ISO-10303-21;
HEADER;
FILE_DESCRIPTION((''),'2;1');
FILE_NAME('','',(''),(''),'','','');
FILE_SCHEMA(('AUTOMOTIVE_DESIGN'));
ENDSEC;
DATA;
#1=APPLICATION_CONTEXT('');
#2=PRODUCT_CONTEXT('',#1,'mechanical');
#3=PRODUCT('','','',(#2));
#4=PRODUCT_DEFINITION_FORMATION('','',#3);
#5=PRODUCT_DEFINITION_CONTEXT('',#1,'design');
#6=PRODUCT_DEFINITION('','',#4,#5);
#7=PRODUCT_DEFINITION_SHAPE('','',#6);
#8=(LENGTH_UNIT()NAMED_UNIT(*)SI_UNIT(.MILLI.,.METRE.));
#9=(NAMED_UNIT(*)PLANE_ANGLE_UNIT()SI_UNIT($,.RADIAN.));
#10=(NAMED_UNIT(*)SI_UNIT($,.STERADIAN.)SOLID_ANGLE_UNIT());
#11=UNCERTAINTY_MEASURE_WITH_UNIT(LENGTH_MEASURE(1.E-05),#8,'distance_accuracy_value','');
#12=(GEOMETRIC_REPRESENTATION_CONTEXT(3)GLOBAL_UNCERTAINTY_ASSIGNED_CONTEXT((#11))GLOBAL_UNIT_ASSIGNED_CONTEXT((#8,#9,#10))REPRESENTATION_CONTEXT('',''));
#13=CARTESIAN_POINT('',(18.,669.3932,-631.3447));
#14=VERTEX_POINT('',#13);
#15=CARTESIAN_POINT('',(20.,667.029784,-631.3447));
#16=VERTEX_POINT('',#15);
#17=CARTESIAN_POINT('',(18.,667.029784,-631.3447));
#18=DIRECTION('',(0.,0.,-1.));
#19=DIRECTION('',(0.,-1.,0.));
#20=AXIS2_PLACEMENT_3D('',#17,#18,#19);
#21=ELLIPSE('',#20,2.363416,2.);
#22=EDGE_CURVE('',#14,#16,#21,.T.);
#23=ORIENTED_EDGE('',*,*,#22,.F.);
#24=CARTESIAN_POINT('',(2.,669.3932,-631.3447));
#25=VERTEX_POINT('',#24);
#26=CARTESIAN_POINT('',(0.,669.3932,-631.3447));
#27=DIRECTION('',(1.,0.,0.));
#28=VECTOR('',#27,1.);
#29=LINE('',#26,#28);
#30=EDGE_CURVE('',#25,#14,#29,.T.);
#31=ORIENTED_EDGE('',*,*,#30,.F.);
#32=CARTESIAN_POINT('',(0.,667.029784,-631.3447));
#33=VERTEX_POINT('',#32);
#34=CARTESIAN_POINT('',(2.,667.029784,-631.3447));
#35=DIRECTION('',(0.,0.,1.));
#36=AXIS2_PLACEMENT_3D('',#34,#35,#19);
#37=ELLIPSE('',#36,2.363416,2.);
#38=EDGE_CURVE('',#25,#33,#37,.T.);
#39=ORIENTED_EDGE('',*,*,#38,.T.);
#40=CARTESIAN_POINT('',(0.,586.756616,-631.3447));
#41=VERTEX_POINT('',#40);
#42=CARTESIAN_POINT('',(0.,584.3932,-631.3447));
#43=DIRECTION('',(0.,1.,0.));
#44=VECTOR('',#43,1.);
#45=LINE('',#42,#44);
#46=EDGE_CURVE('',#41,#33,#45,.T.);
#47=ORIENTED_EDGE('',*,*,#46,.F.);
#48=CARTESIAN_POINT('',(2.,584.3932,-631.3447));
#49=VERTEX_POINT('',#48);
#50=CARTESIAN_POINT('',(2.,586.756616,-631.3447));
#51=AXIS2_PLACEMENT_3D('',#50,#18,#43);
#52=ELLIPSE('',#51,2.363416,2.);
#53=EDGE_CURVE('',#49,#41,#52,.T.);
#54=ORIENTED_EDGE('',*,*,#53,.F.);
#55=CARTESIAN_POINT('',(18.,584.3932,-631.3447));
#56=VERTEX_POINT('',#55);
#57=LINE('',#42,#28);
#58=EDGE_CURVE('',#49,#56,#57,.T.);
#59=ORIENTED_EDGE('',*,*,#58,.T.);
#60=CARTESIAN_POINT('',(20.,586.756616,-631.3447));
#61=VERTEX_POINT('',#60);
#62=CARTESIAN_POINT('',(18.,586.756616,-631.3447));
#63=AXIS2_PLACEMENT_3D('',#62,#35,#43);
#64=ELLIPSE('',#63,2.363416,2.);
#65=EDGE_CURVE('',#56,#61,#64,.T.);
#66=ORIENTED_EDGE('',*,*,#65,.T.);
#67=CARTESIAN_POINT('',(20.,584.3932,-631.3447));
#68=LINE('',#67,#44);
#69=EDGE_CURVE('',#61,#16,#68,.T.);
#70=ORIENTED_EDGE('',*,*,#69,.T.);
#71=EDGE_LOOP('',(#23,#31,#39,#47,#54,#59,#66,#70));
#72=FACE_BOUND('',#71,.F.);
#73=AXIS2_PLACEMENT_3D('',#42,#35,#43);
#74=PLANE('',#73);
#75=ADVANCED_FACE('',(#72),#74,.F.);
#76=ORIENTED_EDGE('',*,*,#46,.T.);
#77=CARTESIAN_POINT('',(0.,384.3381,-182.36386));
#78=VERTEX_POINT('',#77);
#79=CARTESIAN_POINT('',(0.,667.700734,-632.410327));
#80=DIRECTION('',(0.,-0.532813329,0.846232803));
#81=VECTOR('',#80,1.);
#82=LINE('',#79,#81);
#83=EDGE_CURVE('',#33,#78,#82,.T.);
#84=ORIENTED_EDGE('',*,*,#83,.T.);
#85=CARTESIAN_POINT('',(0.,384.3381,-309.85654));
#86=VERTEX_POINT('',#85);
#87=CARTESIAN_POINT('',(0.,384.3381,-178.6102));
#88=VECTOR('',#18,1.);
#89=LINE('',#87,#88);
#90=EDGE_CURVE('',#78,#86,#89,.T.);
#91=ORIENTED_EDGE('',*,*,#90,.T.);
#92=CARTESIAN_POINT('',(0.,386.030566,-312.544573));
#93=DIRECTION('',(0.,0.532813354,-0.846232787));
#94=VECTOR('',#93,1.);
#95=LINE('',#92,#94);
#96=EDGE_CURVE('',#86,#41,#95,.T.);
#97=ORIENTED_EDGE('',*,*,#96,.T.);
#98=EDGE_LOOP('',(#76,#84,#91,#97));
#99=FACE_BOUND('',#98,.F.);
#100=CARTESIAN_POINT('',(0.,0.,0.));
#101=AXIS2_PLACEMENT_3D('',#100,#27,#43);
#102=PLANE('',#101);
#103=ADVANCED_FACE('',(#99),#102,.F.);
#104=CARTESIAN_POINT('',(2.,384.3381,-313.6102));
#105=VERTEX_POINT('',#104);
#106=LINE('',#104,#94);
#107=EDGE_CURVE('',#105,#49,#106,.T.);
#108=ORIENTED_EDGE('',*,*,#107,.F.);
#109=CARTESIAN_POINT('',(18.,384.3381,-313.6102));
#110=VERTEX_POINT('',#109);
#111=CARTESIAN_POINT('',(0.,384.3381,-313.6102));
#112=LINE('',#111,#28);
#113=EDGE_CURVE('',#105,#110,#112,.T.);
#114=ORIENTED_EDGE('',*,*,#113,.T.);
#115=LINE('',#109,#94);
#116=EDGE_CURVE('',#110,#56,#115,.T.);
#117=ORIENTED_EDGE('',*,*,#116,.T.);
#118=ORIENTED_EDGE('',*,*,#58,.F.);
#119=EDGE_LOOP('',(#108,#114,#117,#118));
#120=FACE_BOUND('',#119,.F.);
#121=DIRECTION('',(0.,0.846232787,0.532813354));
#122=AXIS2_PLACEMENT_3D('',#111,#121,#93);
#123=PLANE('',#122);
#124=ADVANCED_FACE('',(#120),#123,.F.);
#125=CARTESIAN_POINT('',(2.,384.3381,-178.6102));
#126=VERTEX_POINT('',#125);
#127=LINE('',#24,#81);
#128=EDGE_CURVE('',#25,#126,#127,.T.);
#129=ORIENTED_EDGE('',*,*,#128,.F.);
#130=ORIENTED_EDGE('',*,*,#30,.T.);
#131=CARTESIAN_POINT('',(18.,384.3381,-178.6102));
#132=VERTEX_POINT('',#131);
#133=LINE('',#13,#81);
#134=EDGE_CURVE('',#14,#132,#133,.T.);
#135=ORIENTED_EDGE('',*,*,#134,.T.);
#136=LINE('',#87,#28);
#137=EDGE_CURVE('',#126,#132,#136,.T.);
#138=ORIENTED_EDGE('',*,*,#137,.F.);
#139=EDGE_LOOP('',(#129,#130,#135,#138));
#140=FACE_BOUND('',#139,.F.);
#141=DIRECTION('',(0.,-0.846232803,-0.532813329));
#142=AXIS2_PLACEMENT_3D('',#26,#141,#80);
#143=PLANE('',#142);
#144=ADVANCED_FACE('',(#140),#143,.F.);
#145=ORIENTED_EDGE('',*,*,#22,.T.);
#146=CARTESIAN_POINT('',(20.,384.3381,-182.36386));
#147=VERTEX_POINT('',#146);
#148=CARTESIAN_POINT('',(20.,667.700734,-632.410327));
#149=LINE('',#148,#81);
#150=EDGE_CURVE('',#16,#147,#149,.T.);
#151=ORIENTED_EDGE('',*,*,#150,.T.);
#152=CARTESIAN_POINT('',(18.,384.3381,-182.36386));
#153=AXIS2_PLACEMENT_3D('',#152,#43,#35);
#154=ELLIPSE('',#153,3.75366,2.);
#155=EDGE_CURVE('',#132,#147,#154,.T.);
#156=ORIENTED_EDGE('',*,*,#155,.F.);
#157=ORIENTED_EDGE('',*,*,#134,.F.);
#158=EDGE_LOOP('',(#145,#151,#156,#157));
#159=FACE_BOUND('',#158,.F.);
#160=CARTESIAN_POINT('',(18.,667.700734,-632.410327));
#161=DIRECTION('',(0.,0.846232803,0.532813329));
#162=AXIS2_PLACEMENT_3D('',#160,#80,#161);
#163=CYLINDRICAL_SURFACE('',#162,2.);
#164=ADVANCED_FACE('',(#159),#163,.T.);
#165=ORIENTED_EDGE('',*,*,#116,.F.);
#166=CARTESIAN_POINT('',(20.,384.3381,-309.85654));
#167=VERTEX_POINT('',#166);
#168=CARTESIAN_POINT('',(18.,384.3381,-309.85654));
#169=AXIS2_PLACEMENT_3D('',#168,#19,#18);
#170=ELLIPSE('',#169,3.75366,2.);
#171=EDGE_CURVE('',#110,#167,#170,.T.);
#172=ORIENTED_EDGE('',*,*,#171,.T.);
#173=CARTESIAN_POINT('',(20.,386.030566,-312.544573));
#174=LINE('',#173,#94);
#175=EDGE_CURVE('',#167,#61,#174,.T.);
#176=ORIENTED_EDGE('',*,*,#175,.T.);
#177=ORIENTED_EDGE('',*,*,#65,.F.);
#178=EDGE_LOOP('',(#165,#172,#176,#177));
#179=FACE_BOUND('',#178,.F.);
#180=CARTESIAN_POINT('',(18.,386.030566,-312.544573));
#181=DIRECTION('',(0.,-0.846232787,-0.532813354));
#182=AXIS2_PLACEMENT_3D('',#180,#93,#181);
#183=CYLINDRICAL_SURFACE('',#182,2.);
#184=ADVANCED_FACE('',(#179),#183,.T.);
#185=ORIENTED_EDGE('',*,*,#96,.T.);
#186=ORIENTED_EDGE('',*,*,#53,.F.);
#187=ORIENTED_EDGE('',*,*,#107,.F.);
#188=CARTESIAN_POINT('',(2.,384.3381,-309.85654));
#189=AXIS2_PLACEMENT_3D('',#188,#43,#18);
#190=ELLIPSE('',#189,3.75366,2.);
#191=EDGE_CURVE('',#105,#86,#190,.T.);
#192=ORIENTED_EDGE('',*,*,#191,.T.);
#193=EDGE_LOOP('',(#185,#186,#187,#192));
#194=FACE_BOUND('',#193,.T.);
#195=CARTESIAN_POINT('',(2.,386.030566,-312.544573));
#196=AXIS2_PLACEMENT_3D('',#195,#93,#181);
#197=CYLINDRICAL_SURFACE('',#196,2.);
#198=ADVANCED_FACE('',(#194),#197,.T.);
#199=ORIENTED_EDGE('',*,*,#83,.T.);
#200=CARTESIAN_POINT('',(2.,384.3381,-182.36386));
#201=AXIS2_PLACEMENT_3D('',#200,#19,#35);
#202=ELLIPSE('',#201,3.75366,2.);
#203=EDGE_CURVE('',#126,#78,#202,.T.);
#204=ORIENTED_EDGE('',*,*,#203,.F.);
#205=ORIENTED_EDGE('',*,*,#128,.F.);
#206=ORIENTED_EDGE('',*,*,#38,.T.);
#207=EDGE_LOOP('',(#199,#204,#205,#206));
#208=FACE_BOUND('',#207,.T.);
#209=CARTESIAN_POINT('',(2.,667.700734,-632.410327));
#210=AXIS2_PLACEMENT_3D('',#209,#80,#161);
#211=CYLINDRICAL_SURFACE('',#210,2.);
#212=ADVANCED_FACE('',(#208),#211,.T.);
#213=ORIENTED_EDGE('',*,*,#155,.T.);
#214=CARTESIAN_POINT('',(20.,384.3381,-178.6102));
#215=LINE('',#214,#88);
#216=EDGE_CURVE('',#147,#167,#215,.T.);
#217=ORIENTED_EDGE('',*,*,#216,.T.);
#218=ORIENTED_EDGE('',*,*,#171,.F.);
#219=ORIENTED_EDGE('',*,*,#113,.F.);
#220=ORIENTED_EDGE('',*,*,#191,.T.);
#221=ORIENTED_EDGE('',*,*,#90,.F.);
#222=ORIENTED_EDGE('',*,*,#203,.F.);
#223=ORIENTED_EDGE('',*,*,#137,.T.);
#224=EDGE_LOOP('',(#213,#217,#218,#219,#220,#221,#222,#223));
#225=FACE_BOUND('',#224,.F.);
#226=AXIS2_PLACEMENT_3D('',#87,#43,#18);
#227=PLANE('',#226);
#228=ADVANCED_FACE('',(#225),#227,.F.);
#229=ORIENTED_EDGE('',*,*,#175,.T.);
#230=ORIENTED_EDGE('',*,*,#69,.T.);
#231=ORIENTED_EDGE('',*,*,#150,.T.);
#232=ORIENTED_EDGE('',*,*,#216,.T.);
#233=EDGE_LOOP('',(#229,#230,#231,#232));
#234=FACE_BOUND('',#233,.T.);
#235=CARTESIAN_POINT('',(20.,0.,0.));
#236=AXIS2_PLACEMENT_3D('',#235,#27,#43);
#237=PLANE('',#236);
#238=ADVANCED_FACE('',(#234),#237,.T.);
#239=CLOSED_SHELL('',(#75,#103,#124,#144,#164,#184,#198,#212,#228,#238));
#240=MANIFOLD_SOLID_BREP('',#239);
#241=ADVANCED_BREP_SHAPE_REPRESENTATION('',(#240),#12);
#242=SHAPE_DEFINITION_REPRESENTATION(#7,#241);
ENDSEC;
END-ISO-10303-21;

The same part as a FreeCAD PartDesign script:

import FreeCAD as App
import Part
import Sketcher


def edges_at(feature, points):
    """Names of the edges that pass closest to the given points."""
    edges = feature.Shape.Edges
    near = lambda p: min(range(len(edges)), key=lambda i: edges[i].distToShape(Part.Vertex(*p))[0])
    return sorted({f"Edge{near(p) + 1}" for p in points})


def add_polygon(sketch, points):
    """Adds a closed chain of lines whose ends are joined by coincident constraints."""
    first, n = sketch.GeometryCount, len(points)
    for a, b in zip(points, points[1:] + points[:1]):
        sketch.addGeometry(Part.LineSegment(App.Vector(*a, 0), App.Vector(*b, 0)), False)
    for i in range(n):
        sketch.addConstraint(Sketcher.Constraint("Coincident", first + i, 2, first + (i + 1) % n, 1))

doc = App.newDocument("Part")
body = doc.addObject("PartDesign::Body", "Body")

# Sketch on YZ plane
sketch1 = body.newObject("Sketcher::SketchObject", "Sketch")
sketch1.AttachmentSupport = (doc.getObject("YZ_Plane"), [""])
sketch1.MapMode = "FlatFace"
add_polygon(sketch1, [(669.3932, -631.3447), (384.3381, -178.6102), (384.3381, -313.6102), (584.3932, -631.3447)])  # lines 0-3
sketch1.addConstraint([
    Sketcher.Constraint("Vertical", 1),
    Sketcher.Constraint("Horizontal", 3),
    Sketcher.Constraint("Parallel", 0, 2),
    Sketcher.Constraint("DistanceX", 3, 1, 3, 2, 85.0),
    Sketcher.Constraint("DistanceY", 1, 2, 1, 1, 135.0),
    Sketcher.Constraint("Distance", 0, 535.0),
    Sketcher.Constraint("DistanceX", -1, 1, 0, 2, 384.338),
    Sketcher.Constraint("DistanceY", 0, 2, -1, 1, 178.6102),
])
pad1 = body.newObject("PartDesign::Pad", "Pad")
pad1.Profile = sketch1
pad1.Length = 20
doc.recompute()

fillet = body.newObject("PartDesign::Fillet", "Fillet")
fillet.Base = (pad1, edges_at(pad1, [
    (20, 526.866, -404.977),
    (0, 526.866, -404.977),
    (20, 484.366, -472.477),
    (0, 484.366, -472.477),
]))
fillet.Radius = 2

doc.recompute()
